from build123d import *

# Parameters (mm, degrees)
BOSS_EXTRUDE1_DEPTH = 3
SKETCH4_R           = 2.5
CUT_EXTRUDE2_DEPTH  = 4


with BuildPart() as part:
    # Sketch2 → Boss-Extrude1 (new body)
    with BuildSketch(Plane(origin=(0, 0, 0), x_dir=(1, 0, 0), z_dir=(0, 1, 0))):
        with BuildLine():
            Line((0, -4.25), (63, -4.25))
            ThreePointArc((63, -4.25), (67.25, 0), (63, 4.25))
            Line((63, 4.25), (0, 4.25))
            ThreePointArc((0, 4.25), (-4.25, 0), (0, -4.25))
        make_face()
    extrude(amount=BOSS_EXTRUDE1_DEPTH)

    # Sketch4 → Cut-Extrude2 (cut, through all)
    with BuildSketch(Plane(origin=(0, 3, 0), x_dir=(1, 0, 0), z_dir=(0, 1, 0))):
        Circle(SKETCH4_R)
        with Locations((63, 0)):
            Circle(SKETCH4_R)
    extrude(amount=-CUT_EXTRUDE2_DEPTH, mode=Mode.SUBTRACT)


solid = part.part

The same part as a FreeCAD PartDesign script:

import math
import FreeCAD as App
import Part
import Sketcher

doc = App.newDocument("Part")
body = doc.addObject("PartDesign::Body", "Body")

# Sketch on XZ plane
sketch1 = body.newObject("Sketcher::SketchObject", "Sketch")
sketch1.AttachmentSupport = (doc.getObject("XZ_Plane"), [""])
sketch1.MapMode = "FlatFace"
sketch1.addGeometry([
    Part.LineSegment(App.Vector(0, 4.2, 0), App.Vector(63, 4.2, 0)),
    Part.ArcOfCircle(Part.Circle(App.Vector(63, 0, 0), App.Vector(0, 0, 1), 4.2), math.radians(-90), math.radians(90)),
    Part.LineSegment(App.Vector(63, -4.2, 0), App.Vector(0, -4.2, 0)),
    Part.ArcOfCircle(Part.Circle(App.Vector(0, 0, 0), App.Vector(0, 0, 1), 4.2), math.radians(90), math.radians(270)),
], False)
sketch1.addConstraint([
    Sketcher.Constraint("Tangent", 0, 2, 1, 2),
    Sketcher.Constraint("Tangent", 1, 1, 2, 1),
    Sketcher.Constraint("Tangent", 2, 2, 3, 2),
    Sketcher.Constraint("Tangent", 3, 1, 0, 1),
    Sketcher.Constraint("Horizontal", 0),
    Sketcher.Constraint("Horizontal", 2),
    Sketcher.Constraint("Coincident", 3, 3, -1, 1),
    Sketcher.Constraint("DistanceX", 0, 1, 0, 2, 63.0),
    Sketcher.Constraint("Radius", 1, 4.25),
])
pad1 = body.newObject("PartDesign::Pad", "Pad")
pad1.Profile = sketch1
pad1.Length = 3
pad1.Reversed = True

# Sketch on XZ plane
sketch2 = body.newObject("Sketcher::SketchObject", "Sketch001")
sketch2.AttachmentSupport = (doc.getObject("XZ_Plane"), [""])
sketch2.MapMode = "FlatFace"
sketch2.AttachmentOffset = App.Placement(App.Vector(0, 0, -3), App.Rotation())
sketch2.addGeometry([
    Part.Circle(App.Vector(0, 0, 0), App.Vector(0, 0, 1), 2.5),
    Part.Circle(App.Vector(63, 0, 0), App.Vector(0, 0, 1), 2.5),
], False)
sketch2.addConstraint([
    Sketcher.Constraint("Coincident", 0, 3, -1, 1),
    Sketcher.Constraint("Equal", 0, 1),
    Sketcher.Constraint("PointOnObject", 1, 3, -1),
    Sketcher.Constraint("Diameter", 0, 5.0),
    Sketcher.Constraint("DistanceX", -1, 1, 1, 3, 63.0),
])
pocket1 = body.newObject("PartDesign::Pocket", "Pocket")
pocket1.Profile = sketch2
pocket1.Type = "ThroughAll"
pocket1.Reversed = True

doc.recompute()
